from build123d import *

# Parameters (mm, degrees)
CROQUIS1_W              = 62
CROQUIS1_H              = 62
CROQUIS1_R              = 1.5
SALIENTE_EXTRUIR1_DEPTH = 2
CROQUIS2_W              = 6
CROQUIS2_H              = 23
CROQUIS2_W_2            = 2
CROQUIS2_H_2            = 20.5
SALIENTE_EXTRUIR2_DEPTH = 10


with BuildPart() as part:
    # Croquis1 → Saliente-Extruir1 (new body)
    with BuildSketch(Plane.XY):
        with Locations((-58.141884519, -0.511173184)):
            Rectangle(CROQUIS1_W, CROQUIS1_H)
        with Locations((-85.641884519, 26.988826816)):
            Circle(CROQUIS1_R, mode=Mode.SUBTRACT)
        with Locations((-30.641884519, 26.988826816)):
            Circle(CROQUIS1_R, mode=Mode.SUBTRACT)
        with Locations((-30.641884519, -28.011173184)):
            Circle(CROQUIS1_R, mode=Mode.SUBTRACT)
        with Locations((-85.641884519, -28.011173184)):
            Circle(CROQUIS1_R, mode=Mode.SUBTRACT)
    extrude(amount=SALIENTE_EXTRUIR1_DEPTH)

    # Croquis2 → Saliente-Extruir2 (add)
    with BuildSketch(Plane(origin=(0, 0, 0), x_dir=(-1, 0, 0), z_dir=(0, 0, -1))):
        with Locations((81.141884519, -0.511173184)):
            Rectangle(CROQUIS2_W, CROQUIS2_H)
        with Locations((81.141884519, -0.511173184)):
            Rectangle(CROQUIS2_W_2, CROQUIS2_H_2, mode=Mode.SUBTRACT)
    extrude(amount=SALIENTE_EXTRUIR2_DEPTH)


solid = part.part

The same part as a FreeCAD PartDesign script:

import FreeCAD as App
import Part
import Sketcher

V = App.Vector
Q = App.Units.Quantity


def add_polygon(sketch, points):
    """Adds a closed chain of lines whose ends are joined by coincident constraints."""
    first, n = sketch.GeometryCount, len(points)
    for a, b in zip(points, points[1:] + points[:1]):
        sketch.addGeometry(Part.LineSegment(App.Vector(*a, 0), App.Vector(*b, 0)), False)
    for i in range(n):
        sketch.addConstraint(Sketcher.Constraint("Coincident", first + i, 2, first + (i + 1) % n, 1))

doc = App.newDocument("Part")
body = doc.addObject("PartDesign::Body", "Body")

# Sketch on XY plane
sketch1 = body.newObject("Sketcher::SketchObject", "Sketch")
sketch1.AttachmentSupport = (doc.getObject("XY_Plane"), [""])
sketch1.MapMode = "FlatFace"
add_polygon(sketch1, [(-89.1, 30.5), (-89.1, -31.5), (-27.1, -31.5), (-27.1, 30.5)])  # lines 0-3
sketch1.addGeometry(Part.Circle(V(-85.6, -28, 0), V(0, 0, 1), 1.5), False)  # 4
sketch1.addGeometry(Part.Circle(V(-30.6, -28, 0), V(0, 0, 1), 1.5), False)  # 5
sketch1.addGeometry(Part.Circle(V(-85.6, 27, 0), V(0, 0, 1), 1.5), False)  # 6
sketch1.addGeometry(Part.Circle(V(-30.6, 27, 0), V(0, 0, 1), 1.5), False)  # 7
sketch1.addConstraint(Sketcher.Constraint("Vertical", 0))
sketch1.addConstraint(Sketcher.Constraint("Horizontal", 1))
sketch1.addConstraint(Sketcher.Constraint("Vertical", 2))
sketch1.addConstraint(Sketcher.Constraint("Horizontal", 3))
sketch1.addConstraint(Sketcher.Constraint("Equal", 4, 5))
sketch1.addConstraint(Sketcher.Constraint("Equal", 5, 6))
sketch1.addConstraint(Sketcher.Constraint("Equal", 6, 7))
sketch1.addConstraint(Sketcher.Constraint("Horizontal", 4, 3, 5, 3))
sketch1.addConstraint(Sketcher.Constraint("Horizontal", 6, 3, 7, 3))
sketch1.addConstraint(Sketcher.Constraint("Vertical", 4, 3, 6, 3))
sketch1.addConstraint(Sketcher.Constraint("Vertical", 5, 3, 7, 3))
sketch1.addConstraint(Sketcher.Constraint("Equal", 3, 0))
sketch1.addConstraint(Sketcher.Constraint("Diameter", 4, Q("3 mm")))
sketch1.addConstraint(Sketcher.Constraint("DistanceX", 1, 1, 1, 2, Q("62 mm")))
sketch1.addConstraint(Sketcher.Constraint("DistanceX", 4, 3, 5, 3, Q("55 mm")))
sketch1.addConstraint(Sketcher.Constraint("DistanceY", 4, 3, 6, 3, Q("55 mm")))
sketch1.addConstraint(Sketcher.Constraint("DistanceX", 0, 2, 4, 3, Q("3.5 mm")))
sketch1.addConstraint(Sketcher.Constraint("DistanceY", 0, 2, 4, 3, Q("3.5 mm")))
sketch1.addConstraint(Sketcher.Constraint("DistanceX", 4, 3, -1, 1, Q("85.641885 mm")))
sketch1.addConstraint(Sketcher.Constraint("DistanceY", 4, 3, -1, 1, Q("28.011173 mm")))
pad1 = body.newObject("PartDesign::Pad", "Pad")
pad1.Profile = sketch1
pad1.Length = 2

# Sketch on XY plane
sketch2 = body.newObject("Sketcher::SketchObject", "Sketch001")
sketch2.AttachmentSupport = (doc.getObject("XY_Plane"), [""])
sketch2.MapMode = "FlatFace"
add_polygon(sketch2, [(-78.1, 11), (-78.1, -12), (-84.1, -12), (-84.1, 11)])  # lines 0-3
add_polygon(sketch2, [(-82.1, -10.8), (-80.1, -10.8), (-80.1, 9.7), (-82.1, 9.7)])  # lines 4-7
sketch2.addConstraint(Sketcher.Constraint("Vertical", 0))
sketch2.addConstraint(Sketcher.Constraint("Horizontal", 1))
sketch2.addConstraint(Sketcher.Constraint("Vertical", 2))
sketch2.addConstraint(Sketcher.Constraint("Horizontal", 3))
sketch2.addConstraint(Sketcher.Constraint("Horizontal", 4))
sketch2.addConstraint(Sketcher.Constraint("Vertical", 5))
sketch2.addConstraint(Sketcher.Constraint("Horizontal", 6))
sketch2.addConstraint(Sketcher.Constraint("Vertical", 7))
sketch2.addConstraint(Sketcher.Constraint("DistanceX", 1, 2, 1, 1, Q("6 mm")))
sketch2.addConstraint(Sketcher.Constraint("DistanceX", 4, 1, 4, 2, Q("2 mm")))
sketch2.addConstraint(Sketcher.Constraint("DistanceY", 0, 2, 0, 1, Q("23 mm")))
sketch2.addConstraint(Sketcher.Constraint("DistanceY", 5, 1, 5, 2, Q("20.5 mm")))
sketch2.addConstraint(Sketcher.Constraint("DistanceX", 4, 2, 0, 2, Q("2 mm")))
sketch2.addConstraint(Sketcher.Constraint("DistanceY", 0, 2, 4, 2, Q("1.25 mm")))
sketch2.addConstraint(Sketcher.Constraint("DistanceX", 0, 2, -1, 1, Q("78.141885 mm")))
sketch2.addConstraint(Sketcher.Constraint("DistanceY", 0, 2, -1, 1, Q("12.011173 mm")))
pad2 = body.newObject("PartDesign::Pad", "Pad001")
pad2.Profile = sketch2
pad2.Length = 10
pad2.Reversed = True

doc.recompute()
